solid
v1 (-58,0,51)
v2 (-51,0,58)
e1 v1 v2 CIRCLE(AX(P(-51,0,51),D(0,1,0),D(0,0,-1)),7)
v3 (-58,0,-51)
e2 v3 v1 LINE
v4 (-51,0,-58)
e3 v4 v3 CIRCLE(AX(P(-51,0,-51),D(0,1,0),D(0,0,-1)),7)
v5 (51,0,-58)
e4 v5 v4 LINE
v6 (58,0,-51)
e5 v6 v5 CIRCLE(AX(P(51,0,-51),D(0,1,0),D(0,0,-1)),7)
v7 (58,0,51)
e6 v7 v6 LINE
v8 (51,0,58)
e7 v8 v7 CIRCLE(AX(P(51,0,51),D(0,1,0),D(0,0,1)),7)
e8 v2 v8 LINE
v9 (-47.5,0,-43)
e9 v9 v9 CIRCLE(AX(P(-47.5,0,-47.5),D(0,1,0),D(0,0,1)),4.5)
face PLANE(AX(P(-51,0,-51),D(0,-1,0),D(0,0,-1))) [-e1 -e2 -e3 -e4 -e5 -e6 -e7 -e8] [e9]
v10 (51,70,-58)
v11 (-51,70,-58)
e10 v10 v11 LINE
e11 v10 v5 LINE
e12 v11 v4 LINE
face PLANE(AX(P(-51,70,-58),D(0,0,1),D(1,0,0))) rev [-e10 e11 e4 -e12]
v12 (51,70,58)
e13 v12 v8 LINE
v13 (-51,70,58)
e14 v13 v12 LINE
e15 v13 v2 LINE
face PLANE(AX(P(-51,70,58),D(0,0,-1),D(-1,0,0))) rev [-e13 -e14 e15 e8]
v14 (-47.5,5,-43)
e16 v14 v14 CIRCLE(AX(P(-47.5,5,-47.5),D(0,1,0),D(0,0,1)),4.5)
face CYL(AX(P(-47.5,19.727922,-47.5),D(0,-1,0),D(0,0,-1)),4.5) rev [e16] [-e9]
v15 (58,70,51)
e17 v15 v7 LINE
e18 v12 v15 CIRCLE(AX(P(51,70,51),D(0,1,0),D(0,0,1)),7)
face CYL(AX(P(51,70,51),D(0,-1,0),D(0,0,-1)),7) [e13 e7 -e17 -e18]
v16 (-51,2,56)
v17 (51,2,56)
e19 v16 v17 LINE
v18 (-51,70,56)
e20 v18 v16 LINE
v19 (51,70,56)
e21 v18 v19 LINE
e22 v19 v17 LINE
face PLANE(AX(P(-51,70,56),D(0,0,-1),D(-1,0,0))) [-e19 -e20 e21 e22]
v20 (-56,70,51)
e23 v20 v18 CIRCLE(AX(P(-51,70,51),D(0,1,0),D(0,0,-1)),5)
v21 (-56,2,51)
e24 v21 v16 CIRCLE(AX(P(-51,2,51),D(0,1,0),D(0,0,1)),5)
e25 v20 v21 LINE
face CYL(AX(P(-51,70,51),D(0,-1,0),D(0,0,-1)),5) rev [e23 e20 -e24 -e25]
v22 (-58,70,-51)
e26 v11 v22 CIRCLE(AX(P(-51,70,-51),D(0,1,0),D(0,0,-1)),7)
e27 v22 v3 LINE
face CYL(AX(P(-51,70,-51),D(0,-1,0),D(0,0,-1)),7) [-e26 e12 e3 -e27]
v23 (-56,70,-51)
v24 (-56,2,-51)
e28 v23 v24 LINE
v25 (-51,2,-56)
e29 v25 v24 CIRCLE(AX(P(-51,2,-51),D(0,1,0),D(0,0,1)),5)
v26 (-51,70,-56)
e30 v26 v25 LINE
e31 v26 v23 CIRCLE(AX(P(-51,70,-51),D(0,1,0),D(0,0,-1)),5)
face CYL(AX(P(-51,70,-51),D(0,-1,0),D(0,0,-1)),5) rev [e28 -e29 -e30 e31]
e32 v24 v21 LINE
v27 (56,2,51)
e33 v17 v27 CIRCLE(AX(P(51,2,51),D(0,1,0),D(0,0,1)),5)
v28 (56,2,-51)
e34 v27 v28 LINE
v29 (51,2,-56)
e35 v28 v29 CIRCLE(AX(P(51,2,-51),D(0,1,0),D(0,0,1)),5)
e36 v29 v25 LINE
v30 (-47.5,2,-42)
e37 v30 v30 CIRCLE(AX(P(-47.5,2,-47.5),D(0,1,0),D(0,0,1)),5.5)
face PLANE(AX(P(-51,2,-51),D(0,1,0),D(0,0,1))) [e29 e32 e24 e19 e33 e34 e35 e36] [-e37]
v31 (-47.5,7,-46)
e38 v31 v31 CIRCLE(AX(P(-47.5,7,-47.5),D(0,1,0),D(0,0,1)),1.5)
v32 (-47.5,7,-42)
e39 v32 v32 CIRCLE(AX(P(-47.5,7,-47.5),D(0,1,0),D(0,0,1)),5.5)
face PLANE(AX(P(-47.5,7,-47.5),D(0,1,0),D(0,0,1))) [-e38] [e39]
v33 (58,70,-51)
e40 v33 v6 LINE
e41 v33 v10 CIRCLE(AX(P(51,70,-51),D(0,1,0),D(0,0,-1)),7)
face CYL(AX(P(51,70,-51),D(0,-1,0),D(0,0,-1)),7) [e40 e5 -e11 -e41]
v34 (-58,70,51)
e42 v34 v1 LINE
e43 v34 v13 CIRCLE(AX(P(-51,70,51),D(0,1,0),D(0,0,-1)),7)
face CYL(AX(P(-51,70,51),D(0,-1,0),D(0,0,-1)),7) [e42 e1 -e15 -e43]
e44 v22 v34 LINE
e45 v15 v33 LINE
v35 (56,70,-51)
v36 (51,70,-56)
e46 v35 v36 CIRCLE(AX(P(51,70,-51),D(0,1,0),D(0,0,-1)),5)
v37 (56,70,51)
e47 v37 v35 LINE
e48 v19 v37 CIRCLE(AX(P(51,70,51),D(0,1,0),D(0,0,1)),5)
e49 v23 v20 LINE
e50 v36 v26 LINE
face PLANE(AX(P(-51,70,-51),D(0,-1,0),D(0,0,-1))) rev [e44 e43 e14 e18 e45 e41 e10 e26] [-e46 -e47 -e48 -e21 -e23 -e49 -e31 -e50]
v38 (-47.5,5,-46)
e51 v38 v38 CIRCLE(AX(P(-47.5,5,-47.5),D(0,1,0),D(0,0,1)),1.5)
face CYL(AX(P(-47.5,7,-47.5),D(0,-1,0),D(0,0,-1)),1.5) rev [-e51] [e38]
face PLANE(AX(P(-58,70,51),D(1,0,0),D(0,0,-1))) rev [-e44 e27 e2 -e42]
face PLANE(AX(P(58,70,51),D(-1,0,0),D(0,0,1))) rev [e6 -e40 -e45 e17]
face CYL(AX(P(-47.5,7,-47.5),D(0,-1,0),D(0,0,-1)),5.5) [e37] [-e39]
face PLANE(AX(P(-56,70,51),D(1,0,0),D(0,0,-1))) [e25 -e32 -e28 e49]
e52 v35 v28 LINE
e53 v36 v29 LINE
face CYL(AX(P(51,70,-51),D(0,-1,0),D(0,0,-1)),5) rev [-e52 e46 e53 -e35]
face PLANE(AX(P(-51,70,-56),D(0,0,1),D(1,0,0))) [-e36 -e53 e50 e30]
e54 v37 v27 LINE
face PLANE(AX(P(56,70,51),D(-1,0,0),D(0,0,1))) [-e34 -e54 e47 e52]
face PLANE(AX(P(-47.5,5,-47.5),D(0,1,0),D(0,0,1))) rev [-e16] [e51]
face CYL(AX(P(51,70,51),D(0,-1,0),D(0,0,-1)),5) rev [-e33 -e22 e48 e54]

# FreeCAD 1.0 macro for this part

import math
import FreeCAD as App
import Part
import Sketcher
from FreeCAD import Vector
Q = App.Units.Quantity

doc = App.newDocument("Part")
body = doc.addObject("PartDesign::Body", "Body")

sketch1 = doc.addObject("Sketcher::SketchObject", "Sketch")
body.addObject(sketch1)
sketch1.AttachmentSupport = (doc.XZ_Plane, [""])
sketch1.MapMode = "FlatFace"
sketch1.addGeometry([
    Part.LineSegment(Vector(51, -58, 0), Vector(-51, -58, 0)),
    Part.ArcOfCircle(Part.Circle(Vector(-51, -51, 0), Vector(0, 0, 1), 7), math.radians(-180), math.radians(-90)),
    Part.LineSegment(Vector(-58, -51, 0), Vector(-58, 51, 0)),
    Part.ArcOfCircle(Part.Circle(Vector(-51, 51, 0), Vector(0, 0, 1), 7), math.radians(90), math.radians(180)),
    Part.LineSegment(Vector(-51, 58, 0), Vector(51, 58, 0)),
    Part.ArcOfCircle(Part.Circle(Vector(51, 51, 0), Vector(0, 0, 1), 7), math.radians(0), math.radians(90)),
    Part.LineSegment(Vector(58, 51, 0), Vector(58, -51, 0)),
    Part.ArcOfCircle(Part.Circle(Vector(51, -51, 0), Vector(0, 0, 1), 7), math.radians(-90), math.radians(0)),
    Part.ArcOfCircle(Part.Circle(Vector(-51, 51, 0), Vector(0, 0, 1), 5), math.radians(90), math.radians(180)),
    Part.LineSegment(Vector(-56, 51, 0), Vector(-56, -51, 0)),
    Part.ArcOfCircle(Part.Circle(Vector(-51, -51, 0), Vector(0, 0, 1), 5), math.radians(180), math.radians(270)),
    Part.LineSegment(Vector(-51, -56, 0), Vector(51, -56, 0)),
    Part.ArcOfCircle(Part.Circle(Vector(51, -51, 0), Vector(0, 0, 1), 5), math.radians(-90), math.radians(0)),
    Part.LineSegment(Vector(56, -51, 0), Vector(56, 51, 0)),
    Part.ArcOfCircle(Part.Circle(Vector(51, 51, 0), Vector(0, 0, 1), 5), math.radians(0), math.radians(90)),
    Part.LineSegment(Vector(51, 56, 0), Vector(-51, 56, 0)),
], False)
sketch1.addConstraint([
    Sketcher.Constraint("Tangent", 0, 2, 1, 2),
    Sketcher.Constraint("Tangent", 1, 1, 2, 1),
    Sketcher.Constraint("Tangent", 2, 2, 3, 2),
    Sketcher.Constraint("Tangent", 3, 1, 4, 1),
    Sketcher.Constraint("Tangent", 4, 2, 5, 2),
    Sketcher.Constraint("Tangent", 5, 1, 6, 1),
    Sketcher.Constraint("Tangent", 6, 2, 7, 2),
    Sketcher.Constraint("Tangent", 7, 1, 0, 1),
    Sketcher.Constraint("Tangent", 8, 2, 9, 1),
    Sketcher.Constraint("Tangent", 9, 2, 10, 1),
    Sketcher.Constraint("Tangent", 10, 2, 11, 1),
    Sketcher.Constraint("Tangent", 11, 2, 12, 1),
    Sketcher.Constraint("Tangent", 12, 2, 13, 1),
    Sketcher.Constraint("Tangent", 13, 2, 14, 1),
    Sketcher.Constraint("Tangent", 14, 2, 15, 1),
    Sketcher.Constraint("Tangent", 15, 2, 8, 1),
    Sketcher.Constraint("Horizontal", 0),
    Sketcher.Constraint("Vertical", 2),
    Sketcher.Constraint("Horizontal", 4),
    Sketcher.Constraint("Vertical", 6),
    Sketcher.Constraint("Vertical", 9),
    Sketcher.Constraint("Horizontal", 11),
    Sketcher.Constraint("Vertical", 13),
    Sketcher.Constraint("Horizontal", 15),
    Sketcher.Constraint("Coincident", 8, 3, 3, 3),
    Sketcher.Constraint("Coincident", 10, 3, 1, 3),
    Sketcher.Constraint("Coincident", 12, 3, 7, 3),
    Sketcher.Constraint("Equal", 1, 3),
    Sketcher.Constraint("Equal", 3, 5),
    Sketcher.Constraint("Equal", 5, 7),
    Sketcher.Constraint("Equal", 12, 14),
    Sketcher.Constraint("Symmetric", 1, 3, 5, 3, -1, 1),
    Sketcher.Constraint("Equal", 15, 2),
    Sketcher.Constraint("Radius", 1, Q("7 mm")),
    Sketcher.Constraint("Radius", 8, Q("5 mm")),
    Sketcher.Constraint("DistanceX", 0, 2, 0, 1, Q("102 mm")),
])
pad1 = doc.addObject("PartDesign::Pad", "Pad")
body.addObject(pad1)
pad1.Profile = sketch1
pad1.Length = 70
pad1.Reversed = True

sketch2 = doc.addObject("Sketcher::SketchObject", "Sketch001")
body.addObject(sketch2)
sketch2.AttachmentSupport = (doc.XZ_Plane, [""])
sketch2.MapMode = "FlatFace"
sketch2.addGeometry([
    Part.LineSegment(Vector(51, -58, 0), Vector(-51, -58, 0)),
    Part.ArcOfCircle(Part.Circle(Vector(-51, -51, 0), Vector(0, 0, 1), 7), math.radians(-180), math.radians(-90)),
    Part.LineSegment(Vector(-58, -51, 0), Vector(-58, 51, 0)),
    Part.ArcOfCircle(Part.Circle(Vector(-51, 51, 0), Vector(0, 0, 1), 7), math.radians(90), math.radians(180)),
    Part.LineSegment(Vector(-51, 58, 0), Vector(51, 58, 0)),
    Part.ArcOfCircle(Part.Circle(Vector(51, 51, 0), Vector(0, 0, 1), 7), math.radians(0), math.radians(90)),
    Part.LineSegment(Vector(58, 51, 0), Vector(58, -51, 0)),
    Part.ArcOfCircle(Part.Circle(Vector(51, -51, 0), Vector(0, 0, 1), 7), math.radians(-90), math.radians(0)),
], False)
sketch2.addConstraint([
    Sketcher.Constraint("Tangent", 0, 2, 1, 2),
    Sketcher.Constraint("Tangent", 1, 1, 2, 1),
    Sketcher.Constraint("Tangent", 2, 2, 3, 2),
    Sketcher.Constraint("Tangent", 3, 1, 4, 1),
    Sketcher.Constraint("Tangent", 4, 2, 5, 2),
    Sketcher.Constraint("Tangent", 5, 1, 6, 1),
    Sketcher.Constraint("Tangent", 6, 2, 7, 2),
    Sketcher.Constraint("Tangent", 7, 1, 0, 1),
    Sketcher.Constraint("Horizontal", 0),
    Sketcher.Constraint("Vertical", 2),
    Sketcher.Constraint("Horizontal", 4),
    Sketcher.Constraint("Vertical", 6),
    Sketcher.Constraint("Equal", 1, 3),
    Sketcher.Constraint("Equal", 3, 5),
    Sketcher.Constraint("Equal", 5, 7),
    Sketcher.Constraint("Symmetric", 1, 3, 5, 3, -1, 1),
    Sketcher.Constraint("Equal", 4, 2),
    Sketcher.Constraint("Radius", 1, Q("7 mm")),
    Sketcher.Constraint("DistanceX", 0, 2, 0, 1, Q("102 mm")),
])
pad2 = doc.addObject("PartDesign::Pad", "Pad001")
body.addObject(pad2)
pad2.Profile = sketch2
pad2.Length = 2
pad2.Reversed = True

sketch3 = doc.addObject("Sketcher::SketchObject", "Sketch002")
body.addObject(sketch3)
sketch3.AttachmentSupport = (doc.XZ_Plane, [""])
sketch3.MapMode = "FlatFace"
sketch3.AttachmentOffset = App.Placement(Vector(0, 0, -2), App.Rotation())
sketch3.addGeometry([
    Part.Circle(Vector(-47.5, -47.5, 0), Vector(0, 0, 1), 5.5),
    Part.Circle(Vector(-47.5, -47.5, 0), Vector(0, 0, 1), 1.5),
], False)
sketch3.addConstraint([
    Sketcher.Constraint("Coincident", 1, 3, 0, 3),
    Sketcher.Constraint("Diameter", 0, Q("11 mm")),
    Sketcher.Constraint("Diameter", 1, Q("3 mm")),
    Sketcher.Constraint("DistanceX", 0, 3, -1, 1, Q("47.5 mm")),
    Sketcher.Constraint("DistanceY", 0, 3, -1, 1, Q("47.5 mm")),
])
pad3 = doc.addObject("PartDesign::Pad", "Pad002")
body.addObject(pad3)
pad3.Profile = sketch3
pad3.Length = 5
pad3.Reversed = True

sketch4 = doc.addObject("Sketcher::SketchObject", "Sketch003")
body.addObject(sketch4)
sketch4.AttachmentSupport = (doc.XZ_Plane, [""])
sketch4.MapMode = "FlatFace"
sketch4.addGeometry(Part.Circle(Vector(-47.5, -47.5, 0), Vector(0, 0, 1), 4.5), False)
sketch4.addConstraint([
    Sketcher.Constraint("Diameter", 0, Q("9 mm")),
    Sketcher.Constraint("DistanceX", 0, 3, -1, 1, Q("47.5 mm")),
    Sketcher.Constraint("DistanceY", 0, 3, -1, 1, Q("47.5 mm")),
])
pocket1 = doc.addObject("PartDesign::Pocket", "Pocket")
body.addObject(pocket1)
pocket1.Profile = sketch4
pocket1.Length = 5

doc.recompute()
